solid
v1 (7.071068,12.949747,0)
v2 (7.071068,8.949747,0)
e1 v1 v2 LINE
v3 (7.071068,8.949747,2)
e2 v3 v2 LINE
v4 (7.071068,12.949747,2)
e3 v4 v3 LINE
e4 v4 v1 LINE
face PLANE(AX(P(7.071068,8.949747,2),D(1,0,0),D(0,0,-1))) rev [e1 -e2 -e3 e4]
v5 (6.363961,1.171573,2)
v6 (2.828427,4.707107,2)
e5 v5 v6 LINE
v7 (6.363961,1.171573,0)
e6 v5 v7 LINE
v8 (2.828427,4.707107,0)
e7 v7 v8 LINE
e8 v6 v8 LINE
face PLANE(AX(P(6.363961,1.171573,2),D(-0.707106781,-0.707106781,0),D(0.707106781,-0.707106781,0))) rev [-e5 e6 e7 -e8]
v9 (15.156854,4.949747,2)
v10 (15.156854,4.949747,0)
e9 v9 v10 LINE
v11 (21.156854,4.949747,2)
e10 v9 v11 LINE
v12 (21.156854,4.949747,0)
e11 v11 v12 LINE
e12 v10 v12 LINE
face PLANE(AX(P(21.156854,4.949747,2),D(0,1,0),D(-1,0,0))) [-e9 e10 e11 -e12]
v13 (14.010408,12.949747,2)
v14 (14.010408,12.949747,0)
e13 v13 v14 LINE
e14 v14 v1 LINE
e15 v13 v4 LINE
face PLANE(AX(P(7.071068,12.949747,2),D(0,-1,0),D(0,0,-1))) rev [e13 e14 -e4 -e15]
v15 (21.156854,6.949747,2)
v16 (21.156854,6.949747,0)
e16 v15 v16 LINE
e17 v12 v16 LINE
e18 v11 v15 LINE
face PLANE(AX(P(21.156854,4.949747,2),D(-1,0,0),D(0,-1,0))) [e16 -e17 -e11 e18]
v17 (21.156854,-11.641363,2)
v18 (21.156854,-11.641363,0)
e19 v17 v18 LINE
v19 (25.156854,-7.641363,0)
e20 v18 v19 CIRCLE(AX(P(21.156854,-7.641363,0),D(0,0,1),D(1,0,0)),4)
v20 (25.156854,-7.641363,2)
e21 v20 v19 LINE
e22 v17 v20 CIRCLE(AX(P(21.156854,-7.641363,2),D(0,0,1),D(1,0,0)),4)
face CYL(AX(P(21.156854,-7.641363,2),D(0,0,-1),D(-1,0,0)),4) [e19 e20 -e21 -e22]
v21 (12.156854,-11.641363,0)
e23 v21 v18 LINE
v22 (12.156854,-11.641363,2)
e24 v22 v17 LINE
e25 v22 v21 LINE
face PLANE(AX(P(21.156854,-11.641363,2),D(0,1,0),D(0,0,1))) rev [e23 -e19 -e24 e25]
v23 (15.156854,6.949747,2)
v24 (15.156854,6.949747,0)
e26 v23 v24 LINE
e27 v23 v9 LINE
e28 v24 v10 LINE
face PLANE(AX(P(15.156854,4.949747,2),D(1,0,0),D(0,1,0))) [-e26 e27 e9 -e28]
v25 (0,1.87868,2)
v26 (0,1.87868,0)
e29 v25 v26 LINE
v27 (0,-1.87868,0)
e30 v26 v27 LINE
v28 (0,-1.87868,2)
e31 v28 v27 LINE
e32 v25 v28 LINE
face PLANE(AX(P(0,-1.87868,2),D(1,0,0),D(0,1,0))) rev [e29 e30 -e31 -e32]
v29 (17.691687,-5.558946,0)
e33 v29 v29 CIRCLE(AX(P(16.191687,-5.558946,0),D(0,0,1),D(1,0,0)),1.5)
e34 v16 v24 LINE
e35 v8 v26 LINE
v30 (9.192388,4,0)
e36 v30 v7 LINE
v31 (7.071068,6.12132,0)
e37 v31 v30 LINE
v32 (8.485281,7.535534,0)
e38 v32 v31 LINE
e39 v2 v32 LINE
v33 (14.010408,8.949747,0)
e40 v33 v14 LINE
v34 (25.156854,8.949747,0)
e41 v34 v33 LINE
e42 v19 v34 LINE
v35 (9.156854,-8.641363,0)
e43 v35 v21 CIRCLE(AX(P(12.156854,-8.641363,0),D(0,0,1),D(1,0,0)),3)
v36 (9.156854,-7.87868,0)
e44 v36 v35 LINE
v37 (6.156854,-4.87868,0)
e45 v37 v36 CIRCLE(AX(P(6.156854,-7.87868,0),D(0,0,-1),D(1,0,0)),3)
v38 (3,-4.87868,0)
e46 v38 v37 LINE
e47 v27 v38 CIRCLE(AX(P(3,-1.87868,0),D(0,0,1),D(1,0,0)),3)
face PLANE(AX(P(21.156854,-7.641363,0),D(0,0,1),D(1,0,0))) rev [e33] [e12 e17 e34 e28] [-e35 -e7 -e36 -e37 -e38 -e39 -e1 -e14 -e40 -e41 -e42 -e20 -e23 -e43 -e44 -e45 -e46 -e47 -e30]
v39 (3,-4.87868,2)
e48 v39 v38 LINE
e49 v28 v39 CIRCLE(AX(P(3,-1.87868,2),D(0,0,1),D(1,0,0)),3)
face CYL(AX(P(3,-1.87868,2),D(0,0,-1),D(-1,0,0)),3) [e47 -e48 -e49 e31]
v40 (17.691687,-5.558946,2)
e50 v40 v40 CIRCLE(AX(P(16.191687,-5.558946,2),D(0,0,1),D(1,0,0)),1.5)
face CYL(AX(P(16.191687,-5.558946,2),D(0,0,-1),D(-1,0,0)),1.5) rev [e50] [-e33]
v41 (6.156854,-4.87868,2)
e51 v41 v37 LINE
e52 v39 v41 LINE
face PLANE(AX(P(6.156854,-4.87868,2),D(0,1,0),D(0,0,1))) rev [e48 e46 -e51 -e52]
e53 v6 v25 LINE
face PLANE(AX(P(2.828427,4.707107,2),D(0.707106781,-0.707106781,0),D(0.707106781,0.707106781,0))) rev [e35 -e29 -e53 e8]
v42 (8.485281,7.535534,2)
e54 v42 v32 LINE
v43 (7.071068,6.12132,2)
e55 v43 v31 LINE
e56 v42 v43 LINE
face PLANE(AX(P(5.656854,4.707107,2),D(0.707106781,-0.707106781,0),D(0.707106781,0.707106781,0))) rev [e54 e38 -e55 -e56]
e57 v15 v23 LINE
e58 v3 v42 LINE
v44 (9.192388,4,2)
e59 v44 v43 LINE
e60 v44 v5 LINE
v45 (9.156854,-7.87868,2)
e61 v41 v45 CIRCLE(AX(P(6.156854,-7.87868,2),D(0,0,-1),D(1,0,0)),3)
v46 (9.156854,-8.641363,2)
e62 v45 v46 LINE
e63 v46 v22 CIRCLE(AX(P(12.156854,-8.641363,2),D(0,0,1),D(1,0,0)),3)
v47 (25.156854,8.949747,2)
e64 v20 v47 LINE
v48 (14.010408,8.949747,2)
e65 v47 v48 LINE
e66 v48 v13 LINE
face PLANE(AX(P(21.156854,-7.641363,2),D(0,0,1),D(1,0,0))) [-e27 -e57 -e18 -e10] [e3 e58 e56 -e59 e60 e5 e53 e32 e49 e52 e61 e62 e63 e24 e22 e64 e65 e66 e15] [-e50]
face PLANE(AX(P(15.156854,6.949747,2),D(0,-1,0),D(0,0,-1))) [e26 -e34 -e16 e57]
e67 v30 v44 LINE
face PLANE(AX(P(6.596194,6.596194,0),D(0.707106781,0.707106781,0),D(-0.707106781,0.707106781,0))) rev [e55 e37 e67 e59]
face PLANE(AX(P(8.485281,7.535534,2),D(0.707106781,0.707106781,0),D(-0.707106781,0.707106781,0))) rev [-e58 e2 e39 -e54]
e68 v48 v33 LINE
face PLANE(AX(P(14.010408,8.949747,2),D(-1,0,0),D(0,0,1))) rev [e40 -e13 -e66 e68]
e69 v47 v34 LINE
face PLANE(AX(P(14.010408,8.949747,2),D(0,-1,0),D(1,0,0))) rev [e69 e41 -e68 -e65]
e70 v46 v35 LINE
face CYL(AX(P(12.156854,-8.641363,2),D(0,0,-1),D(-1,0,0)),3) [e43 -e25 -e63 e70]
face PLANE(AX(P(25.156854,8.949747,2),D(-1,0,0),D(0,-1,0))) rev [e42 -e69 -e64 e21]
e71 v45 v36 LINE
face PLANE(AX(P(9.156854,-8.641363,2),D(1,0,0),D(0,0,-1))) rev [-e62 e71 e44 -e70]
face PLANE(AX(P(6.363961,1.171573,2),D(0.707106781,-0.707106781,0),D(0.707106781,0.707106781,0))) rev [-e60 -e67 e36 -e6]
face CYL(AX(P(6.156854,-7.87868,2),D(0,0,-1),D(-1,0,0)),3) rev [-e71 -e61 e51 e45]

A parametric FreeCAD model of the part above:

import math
import FreeCAD as App
import Part
import Sketcher
from FreeCAD import Vector
Q = App.Units.Quantity

doc = App.newDocument("Part")
body = doc.addObject("PartDesign::Body", "Body")

sketch1 = doc.addObject("Sketcher::SketchObject", "Sketch")
body.addObject(sketch1)
sketch1.AttachmentSupport = (doc.XY_Plane, [""])
sketch1.MapMode = "FlatFace"
sketch1.addGeometry([
    Part.LineSegment(Vector(6.363961, 1.171573, 0), Vector(2.828427, 4.707107, 0)),
    Part.LineSegment(Vector(2.828427, 4.707107, 0), Vector(0, 1.87868, 0)),
    Part.LineSegment(Vector(0, 1.87868, 0), Vector(0, -1.87868, 0)),
    Part.ArcOfCircle(Part.Circle(Vector(3, -1.87868, 0), Vector(0, 0, 1), 3), math.radians(180), math.radians(270)),
    Part.LineSegment(Vector(3, -4.87868, 0), Vector(6.156854, -4.87868, 0)),
    Part.ArcOfCircle(Part.Circle(Vector(6.156854, -7.87868, 0), Vector(0, 0, 1), 3), math.radians(0), math.radians(90)),
    Part.LineSegment(Vector(9.156854, -7.87868, 0), Vector(9.156854, -8.641363, 0)),
    Part.ArcOfCircle(Part.Circle(Vector(12.156854, -8.641363, 0), Vector(0, 0, 1), 3), math.radians(180), math.radians(270)),
    Part.LineSegment(Vector(12.156854, -11.641363, 0), Vector(21.156854, -11.641363, 0)),
    Part.ArcOfCircle(Part.Circle(Vector(21.156854, -7.641363, 0), Vector(0, 0, 1), 4), math.radians(-90), math.radians(0)),
    Part.LineSegment(Vector(25.156854, -7.641363, 0), Vector(25.156854, 8.949747, 0)),
    Part.LineSegment(Vector(25.156854, 8.949747, 0), Vector(14.010408, 8.949747, 0)),
    Part.LineSegment(Vector(14.010408, 8.949747, 0), Vector(14.010408, 12.949747, 0)),
    Part.LineSegment(Vector(14.010408, 12.949747, 0), Vector(7.071068, 12.949747, 0)),
    Part.LineSegment(Vector(7.071068, 12.949747, 0), Vector(7.071068, 8.949747, 0)),
    Part.LineSegment(Vector(7.071068, 8.949747, 0), Vector(8.485281, 7.535534, 0)),
    Part.LineSegment(Vector(8.485281, 7.535534, 0), Vector(5.656854, 4.707107, 0)),
    Part.LineSegment(Vector(5.656854, 4.707107, 0), Vector(7.778175, 2.585786, 0)),
    Part.LineSegment(Vector(7.778175, 2.585786, 0), Vector(6.363961, 1.171573, 0)),
    Part.Circle(Vector(16.191687, -5.558946, 0), Vector(0, 0, 1), 1.5),
    Part.LineSegment(Vector(21.156854, 4.949747, 0), Vector(15.156854, 4.949747, 0)),
    Part.LineSegment(Vector(15.156854, 4.949747, 0), Vector(15.156854, 6.949747, 0)),
    Part.LineSegment(Vector(15.156854, 6.949747, 0), Vector(21.156854, 6.949747, 0)),
    Part.LineSegment(Vector(21.156854, 6.949747, 0), Vector(21.156854, 4.949747, 0)),
], False)
sketch1.addConstraint([
    Sketcher.Constraint("Coincident", 0, 2, 1, 1),
    Sketcher.Constraint("Coincident", 1, 2, 2, 1),
    Sketcher.Constraint("Tangent", 2, 2, 3, 1),
    Sketcher.Constraint("Tangent", 3, 2, 4, 1),
    Sketcher.Constraint("Tangent", 4, 2, 5, 2),
    Sketcher.Constraint("Tangent", 5, 1, 6, 1),
    Sketcher.Constraint("Tangent", 6, 2, 7, 1),
    Sketcher.Constraint("Tangent", 7, 2, 8, 1),
    Sketcher.Constraint("Tangent", 8, 2, 9, 1),
    Sketcher.Constraint("Tangent", 9, 2, 10, 1),
    Sketcher.Constraint("Coincident", 10, 2, 11, 1),
    Sketcher.Constraint("Coincident", 11, 2, 12, 1),
    Sketcher.Constraint("Coincident", 12, 2, 13, 1),
    Sketcher.Constraint("Coincident", 13, 2, 14, 1),
    Sketcher.Constraint("Coincident", 14, 2, 15, 1),
    Sketcher.Constraint("Coincident", 15, 2, 16, 1),
    Sketcher.Constraint("Coincident", 16, 2, 17, 1),
    Sketcher.Constraint("Coincident", 17, 2, 18, 1),
    Sketcher.Constraint("Coincident", 18, 2, 0, 1),
    Sketcher.Constraint("Coincident", 20, 2, 21, 1),
    Sketcher.Constraint("Coincident", 21, 2, 22, 1),
    Sketcher.Constraint("Coincident", 22, 2, 23, 1),
    Sketcher.Constraint("Coincident", 23, 2, 20, 1),
    Sketcher.Constraint("Vertical", 2),
    Sketcher.Constraint("Horizontal", 4),
    Sketcher.Constraint("Vertical", 6),
    Sketcher.Constraint("Horizontal", 8),
    Sketcher.Constraint("Vertical", 10),
    Sketcher.Constraint("Horizontal", 11),
    Sketcher.Constraint("Vertical", 12),
    Sketcher.Constraint("Horizontal", 13),
    Sketcher.Constraint("Vertical", 14),
    Sketcher.Constraint("Horizontal", 20),
    Sketcher.Constraint("Vertical", 21),
    Sketcher.Constraint("Horizontal", 22),
    Sketcher.Constraint("Vertical", 23),
    Sketcher.Constraint("Equal", 3, 5),
    Sketcher.Constraint("Equal", 5, 7),
    Sketcher.Constraint("Symmetric", 1, 2, 2, 2, -1, 1),
    Sketcher.Constraint("Perpendicular", 0, 1),
    Sketcher.Constraint("Perpendicular", 1, 15),
    Sketcher.Constraint("Perpendicular", 15, 16),
    Sketcher.Constraint("Perpendicular", 16, 17),
    Sketcher.Constraint("Perpendicular", 17, 18),
    Sketcher.Constraint("Horizontal", 11, 2, 14, 2),
    Sketcher.Constraint("Horizontal", 0, 2, 16, 2),
    Sketcher.Constraint("Vertical", 8, 2, 22, 2),
    Sketcher.Constraint("Equal", 1, 16),
    Sketcher.Constraint("Equal", 15, 18),
    Sketcher.Constraint("Diameter", 19, 3.0),
    Sketcher.Constraint("Radius", 3, 3.0),
    Sketcher.Constraint("Radius", 9, 4.0),
    Sketcher.Constraint("DistanceX", 8, 1, 8, 2, 9.0),
    Sketcher.Constraint("DistanceX", 20, 2, 20, 1, 6.0),
    Sketcher.Constraint("DistanceY", 12, 1, 12, 2, 4.0),
    Sketcher.Constraint("DistanceY", 21, 1, 21, 2, 2.0),
    Sketcher.Constraint("Angle", 0, Q("135 deg")),
    Sketcher.Constraint("Distance", 0, 5.0),
    Sketcher.Constraint("Distance", 1, 4.0),
    Sketcher.Constraint("Distance", 15, 2.0),
    Sketcher.Constraint("DistanceY", 20, 2, 11, 2, 4.0),
    Sketcher.Constraint("DistanceX", 13, 2, 13, 1, 6.93934),
    Sketcher.Constraint("DistanceY", 2, 2, 2, 1, 3.757359),
    Sketcher.Constraint("DistanceY", 10, 1, 10, 2, 16.59111),
    Sketcher.Constraint("DistanceX", 4, 1, 4, 2, 3.156854),
    Sketcher.Constraint("DistanceX", 0, 2, 19, 3, 13.36326),
    Sketcher.Constraint("DistanceY", 19, 3, -1, 1, 5.558946),
])
pad1 = doc.addObject("PartDesign::Pad", "Pad")
body.addObject(pad1)
pad1.Profile = sketch1
pad1.Length = 2

sketch2 = doc.addObject("Sketcher::SketchObject", "Sketch001")
body.addObject(sketch2)
sketch2.Placement = App.Placement(Vector(5.181981, 5.181981, 0), App.Rotation(Vector(0, 0, 1), Vector(-0.707106781, 0.707106781, 0), Vector(-0.707106781, -0.707106781, 0), "ZXY"))
sketch2.addGeometry([
    Part.LineSegment(Vector(0, -0.671573, 0), Vector(0, -3.671573, 0)),
    Part.LineSegment(Vector(0, -3.671573, 0), Vector(2, -3.671573, 0)),
    Part.LineSegment(Vector(2, -3.671573, 0), Vector(2, -0.671573, 0)),
    Part.LineSegment(Vector(2, -0.671573, 0), Vector(0, -0.671573, 0)),
], False)
sketch2.addConstraint([
    Sketcher.Constraint("Coincident", 0, 2, 1, 1),
    Sketcher.Constraint("Coincident", 1, 2, 2, 1),
    Sketcher.Constraint("Coincident", 2, 2, 3, 1),
    Sketcher.Constraint("Coincident", 3, 2, 0, 1),
    Sketcher.Constraint("Vertical", 0),
    Sketcher.Constraint("Horizontal", 1),
    Sketcher.Constraint("Vertical", 2),
    Sketcher.Constraint("Horizontal", 3),
    Sketcher.Constraint("PointOnObject", 0, 2, -2),
    Sketcher.Constraint("DistanceX", 1, 1, 1, 2, 2.0),
    Sketcher.Constraint("DistanceY", 0, 2, 0, 1, 3.0),
    Sketcher.Constraint("DistanceY", 0, 2, -1, 1, 3.671573),
])
pocket1 = doc.addObject("PartDesign::Pocket", "Pocket")
body.addObject(pocket1)
pocket1.Profile = sketch2
pocket1.Length = 2

doc.recompute()
